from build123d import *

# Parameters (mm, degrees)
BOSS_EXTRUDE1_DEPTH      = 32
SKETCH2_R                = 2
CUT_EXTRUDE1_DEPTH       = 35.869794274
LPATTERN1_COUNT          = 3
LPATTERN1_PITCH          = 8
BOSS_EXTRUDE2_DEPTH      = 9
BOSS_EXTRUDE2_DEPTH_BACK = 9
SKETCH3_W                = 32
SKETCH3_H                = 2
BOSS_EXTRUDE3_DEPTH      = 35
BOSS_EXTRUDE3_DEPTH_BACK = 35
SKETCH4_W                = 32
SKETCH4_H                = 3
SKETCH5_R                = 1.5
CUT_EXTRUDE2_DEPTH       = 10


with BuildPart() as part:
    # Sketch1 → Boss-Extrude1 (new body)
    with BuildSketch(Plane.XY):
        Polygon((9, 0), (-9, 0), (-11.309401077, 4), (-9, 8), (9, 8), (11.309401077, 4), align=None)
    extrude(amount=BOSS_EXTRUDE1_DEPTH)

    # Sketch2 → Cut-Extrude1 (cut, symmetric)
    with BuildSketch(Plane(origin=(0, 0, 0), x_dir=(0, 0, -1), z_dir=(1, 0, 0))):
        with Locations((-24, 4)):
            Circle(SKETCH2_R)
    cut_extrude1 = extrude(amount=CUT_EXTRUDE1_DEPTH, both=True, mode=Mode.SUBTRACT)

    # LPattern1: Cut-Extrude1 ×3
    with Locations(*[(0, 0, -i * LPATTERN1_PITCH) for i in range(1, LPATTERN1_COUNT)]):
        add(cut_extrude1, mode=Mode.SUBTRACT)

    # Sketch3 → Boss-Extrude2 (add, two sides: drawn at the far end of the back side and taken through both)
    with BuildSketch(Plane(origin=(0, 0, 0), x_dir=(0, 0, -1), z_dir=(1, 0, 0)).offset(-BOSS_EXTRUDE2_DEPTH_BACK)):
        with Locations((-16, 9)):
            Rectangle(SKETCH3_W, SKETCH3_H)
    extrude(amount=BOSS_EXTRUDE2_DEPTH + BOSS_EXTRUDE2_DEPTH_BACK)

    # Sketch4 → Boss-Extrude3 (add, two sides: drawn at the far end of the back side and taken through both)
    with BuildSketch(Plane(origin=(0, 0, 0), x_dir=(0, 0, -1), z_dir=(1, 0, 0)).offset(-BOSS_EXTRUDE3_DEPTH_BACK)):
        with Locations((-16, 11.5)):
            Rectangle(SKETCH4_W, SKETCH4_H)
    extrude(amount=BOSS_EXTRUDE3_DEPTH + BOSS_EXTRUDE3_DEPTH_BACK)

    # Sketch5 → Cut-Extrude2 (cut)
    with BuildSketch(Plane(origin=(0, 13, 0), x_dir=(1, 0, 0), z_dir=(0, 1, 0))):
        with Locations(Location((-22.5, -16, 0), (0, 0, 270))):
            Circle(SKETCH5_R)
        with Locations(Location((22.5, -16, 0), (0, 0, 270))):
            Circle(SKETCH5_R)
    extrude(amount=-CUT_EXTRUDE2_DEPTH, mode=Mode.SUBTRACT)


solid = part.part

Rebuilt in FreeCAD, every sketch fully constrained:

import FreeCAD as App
import Part
import Sketcher
Q = App.Units.Quantity

doc = App.newDocument("Part")
body = doc.addObject("PartDesign::Body", "Body")

# Sketch on XY plane
sketch1 = body.newObject("Sketcher::SketchObject", "Sketch")
sketch1.AttachmentSupport = (doc.getObject("XY_Plane"), [""])
sketch1.MapMode = "FlatFace"
sketch1.addGeometry(Part.LineSegment(App.Vector(-9, 0, 0), App.Vector(9, 0, 0)), False)
sketch1.addGeometry(Part.LineSegment(App.Vector(9, 0, 0), App.Vector(11.3, 4, 0)), False)
sketch1.addGeometry(Part.LineSegment(App.Vector(11.3, 4, 0), App.Vector(9, 8, 0)), False)
sketch1.addGeometry(Part.LineSegment(App.Vector(9, 8, 0), App.Vector(-9, 8, 0)), False)
sketch1.addGeometry(Part.LineSegment(App.Vector(-9, 8, 0), App.Vector(-11.3, 4, 0)), False)
sketch1.addGeometry(Part.LineSegment(App.Vector(-11.3, 4, 0), App.Vector(-9, 0, 0)), False)
sketch1.addConstraint(Sketcher.Constraint("Coincident", 0, 2, 1, 1))
sketch1.addConstraint(Sketcher.Constraint("Coincident", 1, 2, 2, 1))
sketch1.addConstraint(Sketcher.Constraint("Coincident", 2, 2, 3, 1))
sketch1.addConstraint(Sketcher.Constraint("Coincident", 3, 2, 4, 1))
sketch1.addConstraint(Sketcher.Constraint("Coincident", 4, 2, 5, 1))
sketch1.addConstraint(Sketcher.Constraint("Coincident", 5, 2, 0, 1))
sketch1.addConstraint(Sketcher.Constraint("Horizontal", 0))
sketch1.addConstraint(Sketcher.Constraint("Horizontal", 3))
sketch1.addConstraint(Sketcher.Constraint("Symmetric", 0, 2, 5, 2, -1, 1))
sketch1.addConstraint(Sketcher.Constraint("Symmetric", 1, 2, 4, 2, -2))
sketch1.addConstraint(Sketcher.Constraint("Parallel", 1, 4))
sketch1.addConstraint(Sketcher.Constraint("Parallel", 2, 5))
sketch1.addConstraint(Sketcher.Constraint("Vertical", 0, 2, 2, 2))
sketch1.addConstraint(Sketcher.Constraint("DistanceX", 0, 1, 0, 2, Q("18 mm")))
sketch1.addConstraint(Sketcher.Constraint("Angle", 1, Q("60 deg")))
sketch1.addConstraint(Sketcher.Constraint("DistanceY", -1, 1, 1, 2, Q("4 mm")))
pad1 = body.newObject("PartDesign::Pad", "Pad")
pad1.Profile = sketch1
pad1.Length = 32

# Sketch on YZ plane
sketch2 = body.newObject("Sketcher::SketchObject", "Sketch001")
sketch2.AttachmentSupport = (doc.getObject("YZ_Plane"), [""])
sketch2.MapMode = "FlatFace"
sketch2.addGeometry(Part.Circle(App.Vector(4, 24, 0), App.Vector(0, 0, 1), 2), False)
sketch2.addConstraint(Sketcher.Constraint("Diameter", 0, Q("4 mm")))
sketch2.addConstraint(Sketcher.Constraint("DistanceX", -1, 1, 0, 3, Q("4 mm")))
sketch2.addConstraint(Sketcher.Constraint("DistanceY", -1, 1, 0, 3, Q("24 mm")))
pocket1 = body.newObject("PartDesign::Pocket", "Pocket")
pocket1.Profile = sketch2
pocket1.Length = 71.739589
pocket1.Midplane = True
doc.recompute()

linearpattern = body.newObject("PartDesign::LinearPattern", "LinearPattern")
linearpattern.Originals = [pocket1]
linearpattern.Direction = (doc.getObject("Z_Axis"), [""])
linearpattern.Mode = "offset"
linearpattern.Offset = 8
linearpattern.Occurrences = 3
linearpattern.Reversed = True
body.Tip = linearpattern

# Sketch on YZ plane
sketch3 = body.newObject("Sketcher::SketchObject", "Sketch002")
sketch3.AttachmentSupport = (doc.getObject("YZ_Plane"), [""])
sketch3.MapMode = "FlatFace"
sketch3.addGeometry(Part.LineSegment(App.Vector(10, 32, 0), App.Vector(8, 32, 0)), False)
sketch3.addGeometry(Part.LineSegment(App.Vector(8, 32, 0), App.Vector(8, 0, 0)), False)
sketch3.addGeometry(Part.LineSegment(App.Vector(8, 0, 0), App.Vector(10, 0, 0)), False)
sketch3.addGeometry(Part.LineSegment(App.Vector(10, 0, 0), App.Vector(10, 32, 0)), False)
sketch3.addConstraint(Sketcher.Constraint("Coincident", 0, 2, 1, 1))
sketch3.addConstraint(Sketcher.Constraint("Coincident", 1, 2, 2, 1))
sketch3.addConstraint(Sketcher.Constraint("Coincident", 2, 2, 3, 1))
sketch3.addConstraint(Sketcher.Constraint("Coincident", 3, 2, 0, 1))
sketch3.addConstraint(Sketcher.Constraint("Horizontal", 0))
sketch3.addConstraint(Sketcher.Constraint("Vertical", 1))
sketch3.addConstraint(Sketcher.Constraint("Horizontal", 2))
sketch3.addConstraint(Sketcher.Constraint("Vertical", 3))
sketch3.addConstraint(Sketcher.Constraint("PointOnObject", 1, 2, -1))
sketch3.addConstraint(Sketcher.Constraint("DistanceX", 0, 2, 0, 1, Q("2 mm")))
sketch3.addConstraint(Sketcher.Constraint("DistanceY", 1, 2, 1, 1, Q("32 mm")))
sketch3.addConstraint(Sketcher.Constraint("DistanceX", -1, 1, 0, 2, Q("8 mm")))
pad2 = body.newObject("PartDesign::Pad", "Pad001")
pad2.Profile = sketch3
pad2.Type = "TwoLengths"
pad2.Length = 9
pad2.Length2 = 9

# Sketch on YZ plane
sketch4 = body.newObject("Sketcher::SketchObject", "Sketch003")
sketch4.AttachmentSupport = (doc.getObject("YZ_Plane"), [""])
sketch4.MapMode = "FlatFace"
sketch4.addGeometry(Part.LineSegment(App.Vector(13, 32, 0), App.Vector(10, 32, 0)), False)
sketch4.addGeometry(Part.LineSegment(App.Vector(10, 32, 0), App.Vector(10, 0, 0)), False)
sketch4.addGeometry(Part.LineSegment(App.Vector(10, 0, 0), App.Vector(13, 0, 0)), False)
sketch4.addGeometry(Part.LineSegment(App.Vector(13, 0, 0), App.Vector(13, 32, 0)), False)
sketch4.addConstraint(Sketcher.Constraint("Coincident", 0, 2, 1, 1))
sketch4.addConstraint(Sketcher.Constraint("Coincident", 1, 2, 2, 1))
sketch4.addConstraint(Sketcher.Constraint("Coincident", 2, 2, 3, 1))
sketch4.addConstraint(Sketcher.Constraint("Coincident", 3, 2, 0, 1))
sketch4.addConstraint(Sketcher.Constraint("Horizontal", 0))
sketch4.addConstraint(Sketcher.Constraint("Vertical", 1))
sketch4.addConstraint(Sketcher.Constraint("Horizontal", 2))
sketch4.addConstraint(Sketcher.Constraint("Vertical", 3))
sketch4.addConstraint(Sketcher.Constraint("PointOnObject", 1, 2, -1))
sketch4.addConstraint(Sketcher.Constraint("DistanceX", 0, 2, 0, 1, Q("3 mm")))
sketch4.addConstraint(Sketcher.Constraint("DistanceY", 1, 2, 1, 1, Q("32 mm")))
sketch4.addConstraint(Sketcher.Constraint("DistanceX", -1, 1, 0, 2, Q("10 mm")))
pad3 = body.newObject("PartDesign::Pad", "Pad002")
pad3.Profile = sketch4
pad3.Type = "TwoLengths"
pad3.Length = 35
pad3.Length2 = 35

# Sketch on XZ plane
sketch5 = body.newObject("Sketcher::SketchObject", "Sketch004")
sketch5.AttachmentSupport = (doc.getObject("XZ_Plane"), [""])
sketch5.MapMode = "FlatFace"
sketch5.AttachmentOffset = App.Placement(App.Vector(0, 0, -13), App.Rotation())
sketch5.addGeometry(Part.Circle(App.Vector(-22.5, 16, 0), App.Vector(0, 0, 1), 1.5), False)
sketch5.addGeometry(Part.Circle(App.Vector(22.5, 16, 0), App.Vector(0, 0, 1), 1.5), False)
sketch5.addConstraint(Sketcher.Constraint("Equal", 0, 1))
sketch5.addConstraint(Sketcher.Constraint("Symmetric", 0, 3, 1, 3, -2))
sketch5.addConstraint(Sketcher.Constraint("Diameter", 0, Q("3 mm")))
sketch5.addConstraint(Sketcher.Constraint("DistanceY", -1, 1, 0, 3, Q("16 mm")))
sketch5.addConstraint(Sketcher.Constraint("DistanceX", 0, 3, 1, 3, Q("45 mm")))
pocket2 = body.newObject("PartDesign::Pocket", "Pocket001")
pocket2.Profile = sketch5
pocket2.Length = 10
pocket2.Reversed = True

doc.recompute()
